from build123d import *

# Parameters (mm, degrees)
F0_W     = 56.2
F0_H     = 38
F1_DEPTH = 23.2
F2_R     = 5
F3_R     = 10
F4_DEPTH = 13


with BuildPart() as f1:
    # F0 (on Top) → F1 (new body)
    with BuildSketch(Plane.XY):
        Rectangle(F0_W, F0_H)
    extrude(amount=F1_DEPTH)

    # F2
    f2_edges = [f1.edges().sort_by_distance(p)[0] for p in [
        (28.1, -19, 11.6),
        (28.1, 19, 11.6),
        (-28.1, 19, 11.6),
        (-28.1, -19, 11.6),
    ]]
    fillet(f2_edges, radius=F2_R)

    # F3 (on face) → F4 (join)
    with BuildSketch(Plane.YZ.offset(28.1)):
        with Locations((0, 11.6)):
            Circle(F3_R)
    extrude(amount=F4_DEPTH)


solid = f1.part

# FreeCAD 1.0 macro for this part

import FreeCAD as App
import Part
import Sketcher

V = App.Vector


def edges_at(feature, points):
    """Names of the edges that pass closest to the given points."""
    edges = feature.Shape.Edges
    near = lambda p: min(range(len(edges)), key=lambda i: edges[i].distToShape(Part.Vertex(*p))[0])
    return sorted({f"Edge{near(p) + 1}" for p in points})


def add_polygon(sketch, points):
    """Adds a closed chain of lines whose ends are joined by coincident constraints."""
    first, n = sketch.GeometryCount, len(points)
    for a, b in zip(points, points[1:] + points[:1]):
        sketch.addGeometry(Part.LineSegment(App.Vector(*a, 0), App.Vector(*b, 0)), False)
    for i in range(n):
        sketch.addConstraint(Sketcher.Constraint("Coincident", first + i, 2, first + (i + 1) % n, 1))

doc = App.newDocument("Part")
body = doc.addObject("PartDesign::Body", "Body")

sketch1 = body.newObject("Sketcher::SketchObject", "Sketch")
sketch1.AttachmentSupport = (doc.getObject("XY_Plane"), [""])
sketch1.MapMode = "FlatFace"
add_polygon(sketch1, [(-28, 19), (-28, -19), (28, -19), (28, 19)])
sketch1.addConstraint([
    Sketcher.Constraint("Vertical", 0),
    Sketcher.Constraint("Horizontal", 1),
    Sketcher.Constraint("Vertical", 2),
    Sketcher.Constraint("Horizontal", 3),
    Sketcher.Constraint("Symmetric", 0, 2, 2, 2, -1, 1),
    Sketcher.Constraint("DistanceY", 0, 2, 0, 1, 38.0),
    Sketcher.Constraint("DistanceX", 1, 1, 1, 2, 56.2),
])
pad1 = body.newObject("PartDesign::Pad", "Pad")
pad1.Profile = sketch1
pad1.Length = 23.2
doc.recompute()

fillet = body.newObject("PartDesign::Fillet", "Fillet")
fillet.Base = (pad1, edges_at(pad1, [
    (28.1, -19, 11.6),
    (28.1, 19, 11.6),
    (-28.1, 19, 11.6),
    (-28.1, -19, 11.6),
]))
fillet.Radius = 5

sketch2 = body.newObject("Sketcher::SketchObject", "Sketch001")
sketch2.AttachmentSupport = (doc.getObject("YZ_Plane"), [""])
sketch2.MapMode = "FlatFace"
sketch2.AttachmentOffset = App.Placement(V(0, 0, 28.1), App.Rotation())
sketch2.addGeometry(Part.Circle(V(0, 12, 0), V(0, 0, 1), 10), False)
sketch2.addConstraint([
    Sketcher.Constraint("PointOnObject", 0, 3, -2),
    Sketcher.Constraint("Diameter", 0, 20.0),
    Sketcher.Constraint("DistanceY", -1, 1, 0, 3, 11.6),
])
pad2 = body.newObject("PartDesign::Pad", "Pad001")
pad2.Profile = sketch2
pad2.Length = 13

doc.recompute()
